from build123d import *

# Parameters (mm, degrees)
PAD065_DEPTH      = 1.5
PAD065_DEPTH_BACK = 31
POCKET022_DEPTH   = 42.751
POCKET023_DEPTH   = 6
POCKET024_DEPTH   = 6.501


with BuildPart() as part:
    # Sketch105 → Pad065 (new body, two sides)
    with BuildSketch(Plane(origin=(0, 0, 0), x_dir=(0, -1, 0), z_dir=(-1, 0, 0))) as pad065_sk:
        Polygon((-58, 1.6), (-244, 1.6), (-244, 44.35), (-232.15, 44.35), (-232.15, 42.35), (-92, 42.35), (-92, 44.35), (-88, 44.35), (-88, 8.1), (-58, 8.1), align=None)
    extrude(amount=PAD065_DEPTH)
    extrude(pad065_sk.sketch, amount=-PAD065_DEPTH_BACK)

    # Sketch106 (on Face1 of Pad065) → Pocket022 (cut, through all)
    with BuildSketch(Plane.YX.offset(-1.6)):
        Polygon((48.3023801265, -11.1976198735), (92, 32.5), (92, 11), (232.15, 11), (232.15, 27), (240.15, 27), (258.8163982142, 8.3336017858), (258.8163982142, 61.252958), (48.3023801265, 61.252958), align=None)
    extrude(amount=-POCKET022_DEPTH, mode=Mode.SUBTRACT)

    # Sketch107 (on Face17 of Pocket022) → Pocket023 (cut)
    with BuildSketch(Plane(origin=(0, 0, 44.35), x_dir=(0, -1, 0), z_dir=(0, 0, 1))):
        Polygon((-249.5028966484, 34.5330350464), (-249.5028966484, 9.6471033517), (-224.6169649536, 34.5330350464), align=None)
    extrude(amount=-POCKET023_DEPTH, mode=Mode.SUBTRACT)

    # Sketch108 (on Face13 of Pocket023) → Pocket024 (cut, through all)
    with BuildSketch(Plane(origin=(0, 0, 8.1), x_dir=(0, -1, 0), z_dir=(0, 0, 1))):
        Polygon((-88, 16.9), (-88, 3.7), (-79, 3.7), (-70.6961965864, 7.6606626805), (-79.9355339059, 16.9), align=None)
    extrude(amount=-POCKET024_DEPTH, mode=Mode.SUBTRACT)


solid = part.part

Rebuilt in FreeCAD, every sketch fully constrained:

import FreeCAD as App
import Part
import Sketcher
Q = App.Units.Quantity


def add_polygon(sketch, points):
    """Adds a closed chain of lines whose ends are joined by coincident constraints."""
    first, n = sketch.GeometryCount, len(points)
    for a, b in zip(points, points[1:] + points[:1]):
        sketch.addGeometry(Part.LineSegment(App.Vector(*a, 0), App.Vector(*b, 0)), False)
    for i in range(n):
        sketch.addConstraint(Sketcher.Constraint("Coincident", first + i, 2, first + (i + 1) % n, 1))

doc = App.newDocument("Part")
params = doc.addObject("Spreadsheet::Sheet", "Params")
for row, (alias, value) in enumerate([
    ("sketch1_width", "186 mm"),
    ("sketch1_width2", "30 mm"),
    ("sketch1_width3", "4 mm"),
    ("sketch1_height", "2 mm"),
    ("sketch1_height2", "6.5 mm"),
    ("pad1_length", "1.5 mm"),
    ("pad1_length2", "31 mm"),
    ("sketch2_width", "16 mm"),
    ("sketch2_height", "8 mm"),
    ("sketch2_width2", "21.5 mm"),
    ("sketch2_height2", "140.15 mm"),
    ("pocket2_length", "6 mm"),
    ("sketch4_height", "9 mm"),
    ("sketch4_width", "13.2 mm"),
    ("sketch4_length", "9.2 mm"),
], start=1):
    params.set(f"A{row}", alias)
    params.set(f"B{row}", "=" + value)
    params.setAlias(f"B{row}", alias)

body = doc.addObject("PartDesign::Body", "Body")

sketch1 = body.newObject("Sketcher::SketchObject", "Sketch")
sketch1.AttachmentSupport = (doc.getObject("YZ_Plane"), [""])
sketch1.MapMode = "FlatFace"
add_polygon(sketch1, [(244, 1.6), (58, 1.6), (58, 8.1), (88, 8.1), (88, 44.4), (92, 44.4), (92, 42.4), (232.2, 42.4), (232.2, 44.4), (244, 44.4)])
sketch1.addConstraint([
    Sketcher.Constraint("Horizontal", 0),
    Sketcher.Constraint("Vertical", 1),
    Sketcher.Constraint("Horizontal", 2),
    Sketcher.Constraint("Vertical", 3),
    Sketcher.Constraint("Horizontal", 4),
    Sketcher.Constraint("Vertical", 5),
    Sketcher.Constraint("Horizontal", 6),
    Sketcher.Constraint("Vertical", 7),
    Sketcher.Constraint("Horizontal", 8),
    Sketcher.Constraint("Vertical", 9),
    Sketcher.Constraint("Horizontal", 4, 2, 7, 2),
    Sketcher.Constraint("DistanceX", 0, 2, 0, 1, 186.0),
    Sketcher.Constraint("DistanceX", 2, 1, 2, 2, 30.0),
    Sketcher.Constraint("DistanceX", 4, 1, 4, 2, 4.0),
    Sketcher.Constraint("DistanceY", 5, 2, 5, 1, 2.0),
    Sketcher.Constraint("DistanceY", 1, 1, 1, 2, 6.5),
    Sketcher.Constraint("DistanceX", -1, 1, 0, 2, 58.0),
    Sketcher.Constraint("DistanceX", 6, 1, 6, 2, 140.15),
    Sketcher.Constraint("DistanceY", 3, 1, 3, 2, 36.25),
    Sketcher.Constraint("DistanceY", -1, 1, 0, 2, 1.6),
])
sketch1.setExpression("Constraints[21]", "Params.sketch1_width")
sketch1.setExpression("Constraints[22]", "Params.sketch1_width2")
sketch1.setExpression("Constraints[23]", "Params.sketch1_width3")
sketch1.setExpression("Constraints[24]", "Params.sketch1_height")
sketch1.setExpression("Constraints[25]", "Params.sketch1_height2")
pad1 = body.newObject("PartDesign::Pad", "Pad")
pad1.Profile = sketch1
pad1.Type = "TwoLengths"
pad1.setExpression("Length", "Params.pad1_length")
pad1.setExpression("Length2", "Params.pad1_length2")
pad1.Reversed = True

sketch2 = body.newObject("Sketcher::SketchObject", "Sketch001")
sketch2.AttachmentSupport = (doc.getObject("XY_Plane"), [""])
sketch2.MapMode = "FlatFace"
sketch2.AttachmentOffset = App.Placement(App.Vector(0, 0, 1.6), App.Rotation())
add_polygon(sketch2, [(-11, 48), (32, 92), (11, 92), (11, 232), (27, 232), (27, 240), (8, 259), (61, 259), (61, 48)])
sketch2.addConstraint([
    Sketcher.Constraint("Horizontal", 1),
    Sketcher.Constraint("Vertical", 2),
    Sketcher.Constraint("Horizontal", 3),
    Sketcher.Constraint("Vertical", 4),
    Sketcher.Constraint("Horizontal", 6),
    Sketcher.Constraint("Vertical", 7),
    Sketcher.Constraint("Horizontal", 8),
    Sketcher.Constraint("Perpendicular", 0, 5),
    Sketcher.Constraint("DistanceX", 3, 1, 3, 2, 16.0),
    Sketcher.Constraint("DistanceY", 4, 1, 4, 2, 8.0),
    Sketcher.Constraint("Angle", 0, Q("45 deg")),
    Sketcher.Constraint("DistanceX", 1, 2, 1, 1, 21.5),
    Sketcher.Constraint("DistanceY", -1, 1, 0, 2, 92.0),
    Sketcher.Constraint("DistanceX", -1, 1, 1, 2, 11.0),
    Sketcher.Constraint("DistanceY", 2, 1, 2, 2, 140.15),
    Sketcher.Constraint("DistanceY", 7, 2, 7, 1, 210.514018),
    Sketcher.Constraint("DistanceX", -1, 1, 5, 2, 8.333602),
    Sketcher.Constraint("DistanceX", 6, 1, 6, 2, 52.919356),
])
sketch2.setExpression("Constraints[17]", "Params.sketch2_width")
sketch2.setExpression("Constraints[18]", "Params.sketch2_height")
sketch2.setExpression("Constraints[20]", "Params.sketch2_width2")
sketch2.setExpression("Constraints[23]", "Params.sketch2_height2")
pocket1 = body.newObject("PartDesign::Pocket", "Pocket")
pocket1.Profile = sketch2
pocket1.Type = "ThroughAll"
pocket1.Reversed = True

sketch3 = body.newObject("Sketcher::SketchObject", "Sketch002")
sketch3.AttachmentSupport = (doc.getObject("XY_Plane"), [""])
sketch3.MapMode = "FlatFace"
sketch3.AttachmentOffset = App.Placement(App.Vector(0, 0, 44.35), App.Rotation())
add_polygon(sketch3, [(35, 250), (10, 250), (35, 225)])
sketch3.addConstraint([
    Sketcher.Constraint("Horizontal", 0),
    Sketcher.Constraint("Vertical", 2),
    Sketcher.Constraint("Equal", 0, 2),
    Sketcher.Constraint("DistanceX", 0, 2, 0, 1, 24.885932),
    Sketcher.Constraint("DistanceX", -1, 1, 0, 2, 9.647103),
    Sketcher.Constraint("DistanceY", -1, 1, 0, 2, 249.502897),
])
pocket2 = body.newObject("PartDesign::Pocket", "Pocket001")
pocket2.Profile = sketch3
pocket2.setExpression("Length", "Params.pocket2_length")

sketch4 = body.newObject("Sketcher::SketchObject", "Sketch003")
sketch4.AttachmentSupport = (doc.getObject("XY_Plane"), [""])
sketch4.MapMode = "FlatFace"
sketch4.AttachmentOffset = App.Placement(App.Vector(0, 0, 8.1), App.Rotation())
add_polygon(sketch4, [(17, 88), (4, 88), (4, 79), (8, 71), (17, 80)])
sketch4.addConstraint([
    Sketcher.Constraint("Horizontal", 0),
    Sketcher.Constraint("Vertical", 1),
    Sketcher.Constraint("Vertical", 4),
    Sketcher.Constraint("DistanceY", 1, 2, 1, 1, 9.0),
    Sketcher.Constraint("Angle", 3, Q("45 deg")),
    Sketcher.Constraint("DistanceX", 0, 2, 0, 1, 13.2),
    Sketcher.Constraint("DistanceY", -1, 1, 0, 2, 88.0),
    Sketcher.Constraint("Distance", 2, 9.2),
    Sketcher.Constraint("DistanceX", -1, 1, 0, 2, 3.7),
    Sketcher.Constraint("DistanceY", 4, 1, 4, 2, 8.064466),
])
sketch4.setExpression("Constraints[8]", "Params.sketch4_height")
sketch4.setExpression("Constraints[10]", "Params.sketch4_width")
sketch4.setExpression("Constraints[12]", "Params.sketch4_length")
pocket3 = body.newObject("PartDesign::Pocket", "Pocket002")
pocket3.Profile = sketch4
pocket3.Type = "ThroughAll"

doc.recompute()
